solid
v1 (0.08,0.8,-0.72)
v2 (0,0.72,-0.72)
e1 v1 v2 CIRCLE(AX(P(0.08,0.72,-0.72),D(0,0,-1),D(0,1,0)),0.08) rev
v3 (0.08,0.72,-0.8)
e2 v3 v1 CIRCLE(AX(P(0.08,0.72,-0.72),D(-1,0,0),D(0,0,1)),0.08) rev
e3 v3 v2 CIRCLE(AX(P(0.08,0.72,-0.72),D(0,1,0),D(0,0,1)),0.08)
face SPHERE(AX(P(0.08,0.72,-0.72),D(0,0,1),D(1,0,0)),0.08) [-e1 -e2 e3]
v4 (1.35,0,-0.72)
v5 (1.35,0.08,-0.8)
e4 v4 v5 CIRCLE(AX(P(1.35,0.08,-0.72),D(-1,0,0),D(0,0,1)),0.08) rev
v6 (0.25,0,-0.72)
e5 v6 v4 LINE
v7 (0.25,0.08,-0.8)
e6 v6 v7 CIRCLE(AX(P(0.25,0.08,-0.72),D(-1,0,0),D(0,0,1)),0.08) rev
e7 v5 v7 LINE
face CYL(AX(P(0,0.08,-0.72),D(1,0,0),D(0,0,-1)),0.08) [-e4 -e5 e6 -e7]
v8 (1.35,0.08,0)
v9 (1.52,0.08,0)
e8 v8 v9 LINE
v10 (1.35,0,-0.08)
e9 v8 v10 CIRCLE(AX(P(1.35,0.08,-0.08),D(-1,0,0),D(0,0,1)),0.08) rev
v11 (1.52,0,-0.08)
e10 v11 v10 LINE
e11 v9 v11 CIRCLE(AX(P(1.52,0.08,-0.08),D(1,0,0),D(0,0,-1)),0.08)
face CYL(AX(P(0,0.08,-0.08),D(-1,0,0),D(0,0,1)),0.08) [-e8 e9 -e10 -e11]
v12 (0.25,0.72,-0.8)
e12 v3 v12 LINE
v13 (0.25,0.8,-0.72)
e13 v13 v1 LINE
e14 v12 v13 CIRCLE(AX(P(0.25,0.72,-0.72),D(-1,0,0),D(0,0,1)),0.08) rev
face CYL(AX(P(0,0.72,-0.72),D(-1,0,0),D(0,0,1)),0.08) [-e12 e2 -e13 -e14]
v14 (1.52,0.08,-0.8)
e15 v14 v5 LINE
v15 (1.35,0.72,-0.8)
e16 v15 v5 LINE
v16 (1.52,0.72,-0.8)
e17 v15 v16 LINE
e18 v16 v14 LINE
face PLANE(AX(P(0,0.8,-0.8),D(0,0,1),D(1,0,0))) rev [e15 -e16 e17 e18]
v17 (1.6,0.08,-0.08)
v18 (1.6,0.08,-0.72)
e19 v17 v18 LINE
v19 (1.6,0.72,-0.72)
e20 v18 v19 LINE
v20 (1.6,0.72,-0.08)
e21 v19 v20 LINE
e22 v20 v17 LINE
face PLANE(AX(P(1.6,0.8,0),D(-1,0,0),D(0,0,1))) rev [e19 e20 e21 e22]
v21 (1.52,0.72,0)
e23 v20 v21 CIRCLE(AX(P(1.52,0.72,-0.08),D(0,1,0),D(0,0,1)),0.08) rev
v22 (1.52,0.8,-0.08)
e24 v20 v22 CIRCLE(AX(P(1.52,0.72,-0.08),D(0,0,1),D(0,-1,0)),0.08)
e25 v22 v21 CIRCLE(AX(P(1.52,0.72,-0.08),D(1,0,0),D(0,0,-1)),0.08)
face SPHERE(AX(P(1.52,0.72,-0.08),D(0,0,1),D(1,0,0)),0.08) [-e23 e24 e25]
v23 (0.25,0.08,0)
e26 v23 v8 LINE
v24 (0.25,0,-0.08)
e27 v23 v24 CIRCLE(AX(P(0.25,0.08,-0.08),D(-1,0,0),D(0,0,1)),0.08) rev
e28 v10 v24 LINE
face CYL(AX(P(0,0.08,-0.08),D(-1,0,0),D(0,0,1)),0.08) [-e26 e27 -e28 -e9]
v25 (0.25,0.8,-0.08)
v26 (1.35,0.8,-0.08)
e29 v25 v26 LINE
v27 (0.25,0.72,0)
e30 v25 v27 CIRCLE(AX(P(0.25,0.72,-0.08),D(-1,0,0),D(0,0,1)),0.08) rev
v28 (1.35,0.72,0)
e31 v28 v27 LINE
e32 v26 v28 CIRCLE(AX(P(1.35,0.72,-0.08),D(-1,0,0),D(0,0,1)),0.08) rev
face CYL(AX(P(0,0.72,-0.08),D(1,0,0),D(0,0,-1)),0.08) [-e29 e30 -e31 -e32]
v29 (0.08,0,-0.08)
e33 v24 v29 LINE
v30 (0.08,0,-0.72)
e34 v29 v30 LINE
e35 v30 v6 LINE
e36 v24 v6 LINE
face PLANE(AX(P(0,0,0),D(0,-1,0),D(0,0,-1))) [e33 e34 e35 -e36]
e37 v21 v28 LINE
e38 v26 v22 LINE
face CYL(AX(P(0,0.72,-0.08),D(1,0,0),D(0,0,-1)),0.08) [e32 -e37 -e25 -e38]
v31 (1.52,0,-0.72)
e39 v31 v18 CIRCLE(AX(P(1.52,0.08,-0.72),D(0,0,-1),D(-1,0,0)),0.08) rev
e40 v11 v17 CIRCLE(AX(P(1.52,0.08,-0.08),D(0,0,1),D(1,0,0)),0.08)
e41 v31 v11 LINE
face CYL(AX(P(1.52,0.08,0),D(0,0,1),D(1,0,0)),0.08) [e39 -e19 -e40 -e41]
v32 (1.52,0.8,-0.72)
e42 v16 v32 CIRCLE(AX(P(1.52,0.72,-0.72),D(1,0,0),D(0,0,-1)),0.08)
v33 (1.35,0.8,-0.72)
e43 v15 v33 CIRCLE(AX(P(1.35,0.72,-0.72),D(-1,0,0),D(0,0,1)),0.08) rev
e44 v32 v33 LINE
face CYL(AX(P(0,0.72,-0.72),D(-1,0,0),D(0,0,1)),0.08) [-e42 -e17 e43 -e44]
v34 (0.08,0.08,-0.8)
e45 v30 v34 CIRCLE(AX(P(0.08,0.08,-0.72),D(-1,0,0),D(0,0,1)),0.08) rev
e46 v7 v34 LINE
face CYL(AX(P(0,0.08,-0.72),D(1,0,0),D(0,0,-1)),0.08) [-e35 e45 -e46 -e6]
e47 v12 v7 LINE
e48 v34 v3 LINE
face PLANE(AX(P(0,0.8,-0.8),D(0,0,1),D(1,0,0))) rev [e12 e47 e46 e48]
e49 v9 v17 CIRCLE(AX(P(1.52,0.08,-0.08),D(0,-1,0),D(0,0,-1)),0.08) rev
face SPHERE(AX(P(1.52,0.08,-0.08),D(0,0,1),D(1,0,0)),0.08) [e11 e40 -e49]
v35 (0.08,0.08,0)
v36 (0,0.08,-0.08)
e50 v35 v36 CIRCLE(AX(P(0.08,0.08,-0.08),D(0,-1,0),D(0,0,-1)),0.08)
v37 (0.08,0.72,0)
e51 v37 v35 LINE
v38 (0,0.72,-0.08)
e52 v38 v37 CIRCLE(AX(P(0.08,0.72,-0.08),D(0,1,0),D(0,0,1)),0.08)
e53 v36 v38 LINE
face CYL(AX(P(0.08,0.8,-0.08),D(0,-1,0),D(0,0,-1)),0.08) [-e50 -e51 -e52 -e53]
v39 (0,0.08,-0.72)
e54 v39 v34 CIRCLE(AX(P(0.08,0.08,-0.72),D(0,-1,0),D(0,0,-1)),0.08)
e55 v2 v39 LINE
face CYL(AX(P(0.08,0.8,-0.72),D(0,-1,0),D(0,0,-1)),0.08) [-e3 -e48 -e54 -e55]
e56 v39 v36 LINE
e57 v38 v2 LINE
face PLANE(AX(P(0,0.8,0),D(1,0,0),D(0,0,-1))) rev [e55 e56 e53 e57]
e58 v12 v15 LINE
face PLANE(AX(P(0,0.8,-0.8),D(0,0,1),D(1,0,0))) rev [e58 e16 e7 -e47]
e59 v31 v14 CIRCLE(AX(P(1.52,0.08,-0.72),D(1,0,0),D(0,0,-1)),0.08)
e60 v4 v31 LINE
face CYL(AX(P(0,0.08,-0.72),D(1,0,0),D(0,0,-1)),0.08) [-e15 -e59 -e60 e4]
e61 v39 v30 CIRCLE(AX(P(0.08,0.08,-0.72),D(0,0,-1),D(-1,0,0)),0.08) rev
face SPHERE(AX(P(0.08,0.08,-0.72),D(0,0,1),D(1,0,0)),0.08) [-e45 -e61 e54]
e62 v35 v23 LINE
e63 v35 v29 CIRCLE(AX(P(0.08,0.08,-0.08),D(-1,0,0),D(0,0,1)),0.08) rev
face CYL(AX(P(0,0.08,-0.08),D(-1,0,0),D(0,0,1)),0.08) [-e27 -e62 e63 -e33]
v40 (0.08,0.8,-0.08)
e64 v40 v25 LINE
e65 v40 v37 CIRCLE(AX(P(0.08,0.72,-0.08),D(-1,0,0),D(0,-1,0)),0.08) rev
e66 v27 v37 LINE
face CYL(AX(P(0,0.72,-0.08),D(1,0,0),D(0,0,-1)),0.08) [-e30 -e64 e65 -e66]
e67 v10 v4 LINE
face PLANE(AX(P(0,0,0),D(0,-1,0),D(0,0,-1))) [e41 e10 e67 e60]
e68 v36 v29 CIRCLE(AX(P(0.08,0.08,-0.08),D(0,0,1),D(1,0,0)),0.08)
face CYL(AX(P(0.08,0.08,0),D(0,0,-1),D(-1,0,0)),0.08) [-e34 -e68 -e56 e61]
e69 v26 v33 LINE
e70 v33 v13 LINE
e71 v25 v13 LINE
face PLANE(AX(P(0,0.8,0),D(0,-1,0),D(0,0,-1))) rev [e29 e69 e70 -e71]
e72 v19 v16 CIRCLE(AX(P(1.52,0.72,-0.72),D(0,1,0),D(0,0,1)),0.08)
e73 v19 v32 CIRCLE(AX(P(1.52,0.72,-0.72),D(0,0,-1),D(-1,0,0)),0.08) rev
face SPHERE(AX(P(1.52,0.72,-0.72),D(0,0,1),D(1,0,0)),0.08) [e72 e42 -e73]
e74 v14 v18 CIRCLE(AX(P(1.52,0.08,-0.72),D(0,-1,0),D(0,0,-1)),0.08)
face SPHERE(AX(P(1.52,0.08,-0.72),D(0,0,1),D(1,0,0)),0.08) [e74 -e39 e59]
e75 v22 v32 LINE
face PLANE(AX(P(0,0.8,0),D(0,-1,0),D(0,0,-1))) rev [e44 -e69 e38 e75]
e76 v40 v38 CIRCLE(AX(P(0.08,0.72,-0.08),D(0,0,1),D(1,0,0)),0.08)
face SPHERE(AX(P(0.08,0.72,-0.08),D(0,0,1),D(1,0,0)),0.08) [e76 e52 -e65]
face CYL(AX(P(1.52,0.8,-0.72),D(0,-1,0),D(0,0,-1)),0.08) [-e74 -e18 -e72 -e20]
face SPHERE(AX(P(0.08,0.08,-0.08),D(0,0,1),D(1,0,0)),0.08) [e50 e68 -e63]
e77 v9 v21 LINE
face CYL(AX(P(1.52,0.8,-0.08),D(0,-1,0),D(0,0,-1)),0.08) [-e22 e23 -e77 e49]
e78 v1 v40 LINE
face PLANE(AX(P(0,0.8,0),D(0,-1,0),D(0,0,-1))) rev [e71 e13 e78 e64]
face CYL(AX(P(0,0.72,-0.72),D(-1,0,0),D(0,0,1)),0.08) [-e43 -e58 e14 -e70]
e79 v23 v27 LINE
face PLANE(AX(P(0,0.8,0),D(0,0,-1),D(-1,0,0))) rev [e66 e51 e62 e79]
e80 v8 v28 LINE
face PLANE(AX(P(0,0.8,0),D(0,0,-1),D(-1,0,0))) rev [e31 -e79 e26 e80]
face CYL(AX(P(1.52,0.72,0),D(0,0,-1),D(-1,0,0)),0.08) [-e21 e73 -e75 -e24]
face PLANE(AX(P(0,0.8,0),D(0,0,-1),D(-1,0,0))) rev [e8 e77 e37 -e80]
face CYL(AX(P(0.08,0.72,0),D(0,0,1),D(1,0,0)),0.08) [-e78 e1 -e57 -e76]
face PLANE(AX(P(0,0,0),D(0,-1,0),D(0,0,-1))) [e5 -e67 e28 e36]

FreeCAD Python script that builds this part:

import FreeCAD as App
import Part
import Sketcher

V = App.Vector


def add_polygon(sketch, points):
    """Adds a closed chain of lines whose ends are joined by coincident constraints."""
    first, n = sketch.GeometryCount, len(points)
    for a, b in zip(points, points[1:] + points[:1]):
        sketch.addGeometry(Part.LineSegment(App.Vector(*a, 0), App.Vector(*b, 0)), False)
    for i in range(n):
        sketch.addConstraint(Sketcher.Constraint("Coincident", first + i, 2, first + (i + 1) % n, 1))

doc = App.newDocument("Part")
body = doc.addObject("PartDesign::Body", "Body")

# Sketch on XZ plane
sketch1 = doc.addObject("Sketcher::SketchObject", "Sketch")
body.addObject(sketch1)
sketch1.AttachmentSupport = (doc.XZ_Plane, [""])
sketch1.MapMode = "FlatFace"
add_polygon(sketch1, [(0, -0.8), (0, 0), (1.6, 0), (1.6, -0.8)])  # lines 0-3
sketch1.addConstraint([
    Sketcher.Constraint("Vertical", 0),
    Sketcher.Constraint("Horizontal", 1),
    Sketcher.Constraint("Vertical", 2),
    Sketcher.Constraint("Horizontal", 3),
    Sketcher.Constraint("Coincident", 0, 2, -1, 1),
    Sketcher.Constraint("DistanceX", 1, 1, 1, 2, 1.6),
    Sketcher.Constraint("DistanceY", 0, 1, 0, 2, 0.8),
])
pad1 = doc.addObject("PartDesign::Pad", "Pad")
body.addObject(pad1)
pad1.Profile = sketch1
pad1.Length = 0.8
pad1.Reversed = True
doc.recompute()

fillet = doc.addObject("PartDesign::Fillet", "Fillet")
body.addObject(fillet)
fillet.Base = (pad1, ["Edge1"])
fillet.UseAllEdges = True
fillet.Radius = 0.08

doc.recompute()
